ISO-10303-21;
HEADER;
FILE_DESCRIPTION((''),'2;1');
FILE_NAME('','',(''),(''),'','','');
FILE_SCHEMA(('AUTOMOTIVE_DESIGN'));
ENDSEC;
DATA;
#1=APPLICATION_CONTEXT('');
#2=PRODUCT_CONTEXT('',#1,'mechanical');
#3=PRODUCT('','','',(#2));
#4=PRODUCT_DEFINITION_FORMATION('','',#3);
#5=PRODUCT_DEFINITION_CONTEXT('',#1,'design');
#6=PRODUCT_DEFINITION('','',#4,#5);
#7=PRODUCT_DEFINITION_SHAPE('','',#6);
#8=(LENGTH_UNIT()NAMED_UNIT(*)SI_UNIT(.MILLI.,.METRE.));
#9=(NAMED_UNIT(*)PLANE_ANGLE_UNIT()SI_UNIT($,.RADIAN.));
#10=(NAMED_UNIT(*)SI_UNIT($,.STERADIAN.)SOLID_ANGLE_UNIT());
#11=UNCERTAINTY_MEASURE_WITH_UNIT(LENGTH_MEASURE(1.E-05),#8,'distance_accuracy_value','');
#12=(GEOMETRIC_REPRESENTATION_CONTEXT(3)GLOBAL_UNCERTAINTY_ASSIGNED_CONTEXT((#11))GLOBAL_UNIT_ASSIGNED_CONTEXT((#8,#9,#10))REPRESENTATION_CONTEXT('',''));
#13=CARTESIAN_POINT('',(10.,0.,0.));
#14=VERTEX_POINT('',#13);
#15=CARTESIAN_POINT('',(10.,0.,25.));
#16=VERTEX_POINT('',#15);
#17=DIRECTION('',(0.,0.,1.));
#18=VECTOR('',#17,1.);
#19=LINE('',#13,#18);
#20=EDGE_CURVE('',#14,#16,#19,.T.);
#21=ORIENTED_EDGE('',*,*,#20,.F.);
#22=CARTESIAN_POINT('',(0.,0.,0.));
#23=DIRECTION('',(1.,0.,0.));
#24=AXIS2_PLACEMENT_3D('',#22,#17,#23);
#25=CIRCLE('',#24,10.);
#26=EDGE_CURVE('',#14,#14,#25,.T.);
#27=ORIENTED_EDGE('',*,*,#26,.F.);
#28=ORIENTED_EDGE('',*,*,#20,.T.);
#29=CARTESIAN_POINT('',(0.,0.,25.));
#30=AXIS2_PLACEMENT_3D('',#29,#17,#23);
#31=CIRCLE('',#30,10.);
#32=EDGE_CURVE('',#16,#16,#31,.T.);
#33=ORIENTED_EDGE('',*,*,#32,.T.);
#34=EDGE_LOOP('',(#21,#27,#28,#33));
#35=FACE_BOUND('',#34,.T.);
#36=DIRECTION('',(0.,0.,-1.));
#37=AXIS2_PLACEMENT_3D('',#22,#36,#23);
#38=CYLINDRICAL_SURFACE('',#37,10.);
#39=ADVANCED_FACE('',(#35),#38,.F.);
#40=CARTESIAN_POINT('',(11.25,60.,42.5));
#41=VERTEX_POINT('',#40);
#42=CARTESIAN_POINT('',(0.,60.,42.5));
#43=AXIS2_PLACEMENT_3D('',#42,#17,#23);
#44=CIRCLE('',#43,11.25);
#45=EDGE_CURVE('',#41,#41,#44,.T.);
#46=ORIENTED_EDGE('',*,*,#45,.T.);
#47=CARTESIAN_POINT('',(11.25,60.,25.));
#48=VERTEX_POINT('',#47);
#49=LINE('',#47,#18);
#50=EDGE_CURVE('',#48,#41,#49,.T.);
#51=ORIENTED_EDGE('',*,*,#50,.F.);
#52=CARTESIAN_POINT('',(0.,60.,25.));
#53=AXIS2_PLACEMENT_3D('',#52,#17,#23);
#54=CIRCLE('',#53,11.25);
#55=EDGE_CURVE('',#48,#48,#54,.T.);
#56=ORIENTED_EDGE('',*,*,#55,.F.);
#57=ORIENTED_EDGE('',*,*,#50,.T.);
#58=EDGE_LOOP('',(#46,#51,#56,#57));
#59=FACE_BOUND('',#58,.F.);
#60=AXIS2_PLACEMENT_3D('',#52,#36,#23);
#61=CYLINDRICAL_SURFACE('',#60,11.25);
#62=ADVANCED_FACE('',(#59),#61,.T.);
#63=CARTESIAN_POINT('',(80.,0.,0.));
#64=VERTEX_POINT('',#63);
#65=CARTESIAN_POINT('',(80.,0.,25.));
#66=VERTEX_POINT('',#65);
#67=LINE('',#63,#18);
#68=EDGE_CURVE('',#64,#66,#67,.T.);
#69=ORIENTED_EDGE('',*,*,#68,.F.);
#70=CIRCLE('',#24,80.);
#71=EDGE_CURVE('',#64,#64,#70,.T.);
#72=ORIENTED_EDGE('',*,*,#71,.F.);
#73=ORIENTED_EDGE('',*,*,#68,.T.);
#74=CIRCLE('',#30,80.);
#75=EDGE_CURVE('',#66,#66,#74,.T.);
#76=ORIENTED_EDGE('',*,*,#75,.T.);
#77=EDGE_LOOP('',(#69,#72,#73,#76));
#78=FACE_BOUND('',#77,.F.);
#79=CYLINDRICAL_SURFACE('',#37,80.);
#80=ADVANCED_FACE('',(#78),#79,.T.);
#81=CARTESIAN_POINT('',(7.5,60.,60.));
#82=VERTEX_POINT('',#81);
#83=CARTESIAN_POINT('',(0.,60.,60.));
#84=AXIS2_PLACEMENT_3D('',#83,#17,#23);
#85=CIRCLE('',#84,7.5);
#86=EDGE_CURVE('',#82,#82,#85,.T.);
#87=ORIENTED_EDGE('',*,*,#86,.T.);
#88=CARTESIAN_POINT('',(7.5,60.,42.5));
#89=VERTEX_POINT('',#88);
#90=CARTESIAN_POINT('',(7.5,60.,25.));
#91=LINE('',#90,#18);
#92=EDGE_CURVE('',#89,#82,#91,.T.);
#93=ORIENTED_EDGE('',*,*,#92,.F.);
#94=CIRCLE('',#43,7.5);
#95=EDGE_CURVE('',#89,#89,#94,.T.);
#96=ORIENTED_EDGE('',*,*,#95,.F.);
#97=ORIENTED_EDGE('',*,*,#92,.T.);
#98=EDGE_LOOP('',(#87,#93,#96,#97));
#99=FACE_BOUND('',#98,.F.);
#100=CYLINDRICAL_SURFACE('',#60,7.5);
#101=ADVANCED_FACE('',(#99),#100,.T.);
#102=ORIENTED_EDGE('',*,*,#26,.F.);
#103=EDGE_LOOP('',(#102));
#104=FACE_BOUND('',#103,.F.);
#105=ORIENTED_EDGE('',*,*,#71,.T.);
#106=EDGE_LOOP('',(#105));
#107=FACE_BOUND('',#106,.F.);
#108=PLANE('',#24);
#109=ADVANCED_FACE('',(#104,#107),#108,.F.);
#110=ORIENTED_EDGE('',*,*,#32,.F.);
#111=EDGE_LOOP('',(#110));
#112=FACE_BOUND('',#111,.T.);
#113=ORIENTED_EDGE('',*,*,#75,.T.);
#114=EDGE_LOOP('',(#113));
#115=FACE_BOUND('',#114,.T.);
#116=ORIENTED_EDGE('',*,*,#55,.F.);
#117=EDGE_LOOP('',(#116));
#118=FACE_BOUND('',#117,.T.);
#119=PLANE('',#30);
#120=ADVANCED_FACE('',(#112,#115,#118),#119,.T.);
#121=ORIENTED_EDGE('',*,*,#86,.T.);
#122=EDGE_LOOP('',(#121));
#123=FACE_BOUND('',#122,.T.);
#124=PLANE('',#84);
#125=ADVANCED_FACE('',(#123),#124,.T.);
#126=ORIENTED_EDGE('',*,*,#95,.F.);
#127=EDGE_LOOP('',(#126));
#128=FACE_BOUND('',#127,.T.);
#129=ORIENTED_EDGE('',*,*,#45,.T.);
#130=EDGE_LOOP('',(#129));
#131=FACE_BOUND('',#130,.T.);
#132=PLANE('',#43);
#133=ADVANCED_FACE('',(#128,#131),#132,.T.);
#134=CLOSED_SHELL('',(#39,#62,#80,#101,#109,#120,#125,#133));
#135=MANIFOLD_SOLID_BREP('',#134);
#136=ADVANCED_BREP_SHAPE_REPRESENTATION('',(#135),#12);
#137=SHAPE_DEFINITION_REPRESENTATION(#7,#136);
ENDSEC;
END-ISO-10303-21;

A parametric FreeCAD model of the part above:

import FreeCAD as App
import Part
import Sketcher
from FreeCAD import Vector

doc = App.newDocument("Part")
body = doc.addObject("PartDesign::Body", "Body")

sketch1 = doc.addObject("Sketcher::SketchObject", "Sketch")
body.addObject(sketch1)
sketch1.AttachmentSupport = (doc.XY_Plane, [""])
sketch1.MapMode = "FlatFace"
sketch1.addGeometry(Part.Circle(Vector(0, 0, 0), Vector(0, 0, 1), 80), False)
sketch1.addGeometry(Part.Circle(Vector(0, 0, 0), Vector(0, 0, 1), 10), False)
sketch1.addConstraint(Sketcher.Constraint("Coincident", 0, 3, -1, 1))
sketch1.addConstraint(Sketcher.Constraint("Coincident", 1, 3, -1, 1))
sketch1.addConstraint(Sketcher.Constraint("Diameter", 0, 160.0))
sketch1.addConstraint(Sketcher.Constraint("Diameter", 1, 20.0))
pad1 = doc.addObject("PartDesign::Pad", "Pad")
body.addObject(pad1)
pad1.Profile = sketch1
pad1.Length = 25

sketch2 = doc.addObject("Sketcher::SketchObject", "Sketch001")
body.addObject(sketch2)
sketch2.AttachmentSupport = (doc.XY_Plane, [""])
sketch2.MapMode = "FlatFace"
sketch2.AttachmentOffset = App.Placement(Vector(0, 0, 25), App.Rotation())
sketch2.addGeometry(Part.Circle(Vector(0, 60, 0), Vector(0, 0, 1), 8), False)
sketch2.addConstraint(Sketcher.Constraint("PointOnObject", 0, 3, -2))
sketch2.addConstraint(Sketcher.Constraint("Diameter", 0, 15.0))
sketch2.addConstraint(Sketcher.Constraint("DistanceY", -1, 1, 0, 3, 60.0))
pad2 = doc.addObject("PartDesign::Pad", "Pad001")
body.addObject(pad2)
pad2.Profile = sketch2
pad2.Length = 35

sketch3 = doc.addObject("Sketcher::SketchObject", "Sketch002")
body.addObject(sketch3)
sketch3.AttachmentSupport = (doc.XY_Plane, [""])
sketch3.MapMode = "FlatFace"
sketch3.AttachmentOffset = App.Placement(Vector(0, 0, 25), App.Rotation())
sketch3.addGeometry(Part.Circle(Vector(0, 60, 0), Vector(0, 0, 1), 11), False)
sketch3.addGeometry(Part.Circle(Vector(0, 60, 0), Vector(0, 0, 1), 8), False)
sketch3.addConstraint(Sketcher.Constraint("Coincident", 1, 3, 0, 3))
sketch3.addConstraint(Sketcher.Constraint("PointOnObject", 0, 3, -2))
sketch3.addConstraint(Sketcher.Constraint("Diameter", 1, 15.0))
sketch3.addConstraint(Sketcher.Constraint("Diameter", 0, 22.5))
sketch3.addConstraint(Sketcher.Constraint("DistanceY", -1, 1, 0, 3, 60.0))
pad3 = doc.addObject("PartDesign::Pad", "Pad002")
body.addObject(pad3)
pad3.Profile = sketch3
pad3.Length = 17.5

doc.recompute()
